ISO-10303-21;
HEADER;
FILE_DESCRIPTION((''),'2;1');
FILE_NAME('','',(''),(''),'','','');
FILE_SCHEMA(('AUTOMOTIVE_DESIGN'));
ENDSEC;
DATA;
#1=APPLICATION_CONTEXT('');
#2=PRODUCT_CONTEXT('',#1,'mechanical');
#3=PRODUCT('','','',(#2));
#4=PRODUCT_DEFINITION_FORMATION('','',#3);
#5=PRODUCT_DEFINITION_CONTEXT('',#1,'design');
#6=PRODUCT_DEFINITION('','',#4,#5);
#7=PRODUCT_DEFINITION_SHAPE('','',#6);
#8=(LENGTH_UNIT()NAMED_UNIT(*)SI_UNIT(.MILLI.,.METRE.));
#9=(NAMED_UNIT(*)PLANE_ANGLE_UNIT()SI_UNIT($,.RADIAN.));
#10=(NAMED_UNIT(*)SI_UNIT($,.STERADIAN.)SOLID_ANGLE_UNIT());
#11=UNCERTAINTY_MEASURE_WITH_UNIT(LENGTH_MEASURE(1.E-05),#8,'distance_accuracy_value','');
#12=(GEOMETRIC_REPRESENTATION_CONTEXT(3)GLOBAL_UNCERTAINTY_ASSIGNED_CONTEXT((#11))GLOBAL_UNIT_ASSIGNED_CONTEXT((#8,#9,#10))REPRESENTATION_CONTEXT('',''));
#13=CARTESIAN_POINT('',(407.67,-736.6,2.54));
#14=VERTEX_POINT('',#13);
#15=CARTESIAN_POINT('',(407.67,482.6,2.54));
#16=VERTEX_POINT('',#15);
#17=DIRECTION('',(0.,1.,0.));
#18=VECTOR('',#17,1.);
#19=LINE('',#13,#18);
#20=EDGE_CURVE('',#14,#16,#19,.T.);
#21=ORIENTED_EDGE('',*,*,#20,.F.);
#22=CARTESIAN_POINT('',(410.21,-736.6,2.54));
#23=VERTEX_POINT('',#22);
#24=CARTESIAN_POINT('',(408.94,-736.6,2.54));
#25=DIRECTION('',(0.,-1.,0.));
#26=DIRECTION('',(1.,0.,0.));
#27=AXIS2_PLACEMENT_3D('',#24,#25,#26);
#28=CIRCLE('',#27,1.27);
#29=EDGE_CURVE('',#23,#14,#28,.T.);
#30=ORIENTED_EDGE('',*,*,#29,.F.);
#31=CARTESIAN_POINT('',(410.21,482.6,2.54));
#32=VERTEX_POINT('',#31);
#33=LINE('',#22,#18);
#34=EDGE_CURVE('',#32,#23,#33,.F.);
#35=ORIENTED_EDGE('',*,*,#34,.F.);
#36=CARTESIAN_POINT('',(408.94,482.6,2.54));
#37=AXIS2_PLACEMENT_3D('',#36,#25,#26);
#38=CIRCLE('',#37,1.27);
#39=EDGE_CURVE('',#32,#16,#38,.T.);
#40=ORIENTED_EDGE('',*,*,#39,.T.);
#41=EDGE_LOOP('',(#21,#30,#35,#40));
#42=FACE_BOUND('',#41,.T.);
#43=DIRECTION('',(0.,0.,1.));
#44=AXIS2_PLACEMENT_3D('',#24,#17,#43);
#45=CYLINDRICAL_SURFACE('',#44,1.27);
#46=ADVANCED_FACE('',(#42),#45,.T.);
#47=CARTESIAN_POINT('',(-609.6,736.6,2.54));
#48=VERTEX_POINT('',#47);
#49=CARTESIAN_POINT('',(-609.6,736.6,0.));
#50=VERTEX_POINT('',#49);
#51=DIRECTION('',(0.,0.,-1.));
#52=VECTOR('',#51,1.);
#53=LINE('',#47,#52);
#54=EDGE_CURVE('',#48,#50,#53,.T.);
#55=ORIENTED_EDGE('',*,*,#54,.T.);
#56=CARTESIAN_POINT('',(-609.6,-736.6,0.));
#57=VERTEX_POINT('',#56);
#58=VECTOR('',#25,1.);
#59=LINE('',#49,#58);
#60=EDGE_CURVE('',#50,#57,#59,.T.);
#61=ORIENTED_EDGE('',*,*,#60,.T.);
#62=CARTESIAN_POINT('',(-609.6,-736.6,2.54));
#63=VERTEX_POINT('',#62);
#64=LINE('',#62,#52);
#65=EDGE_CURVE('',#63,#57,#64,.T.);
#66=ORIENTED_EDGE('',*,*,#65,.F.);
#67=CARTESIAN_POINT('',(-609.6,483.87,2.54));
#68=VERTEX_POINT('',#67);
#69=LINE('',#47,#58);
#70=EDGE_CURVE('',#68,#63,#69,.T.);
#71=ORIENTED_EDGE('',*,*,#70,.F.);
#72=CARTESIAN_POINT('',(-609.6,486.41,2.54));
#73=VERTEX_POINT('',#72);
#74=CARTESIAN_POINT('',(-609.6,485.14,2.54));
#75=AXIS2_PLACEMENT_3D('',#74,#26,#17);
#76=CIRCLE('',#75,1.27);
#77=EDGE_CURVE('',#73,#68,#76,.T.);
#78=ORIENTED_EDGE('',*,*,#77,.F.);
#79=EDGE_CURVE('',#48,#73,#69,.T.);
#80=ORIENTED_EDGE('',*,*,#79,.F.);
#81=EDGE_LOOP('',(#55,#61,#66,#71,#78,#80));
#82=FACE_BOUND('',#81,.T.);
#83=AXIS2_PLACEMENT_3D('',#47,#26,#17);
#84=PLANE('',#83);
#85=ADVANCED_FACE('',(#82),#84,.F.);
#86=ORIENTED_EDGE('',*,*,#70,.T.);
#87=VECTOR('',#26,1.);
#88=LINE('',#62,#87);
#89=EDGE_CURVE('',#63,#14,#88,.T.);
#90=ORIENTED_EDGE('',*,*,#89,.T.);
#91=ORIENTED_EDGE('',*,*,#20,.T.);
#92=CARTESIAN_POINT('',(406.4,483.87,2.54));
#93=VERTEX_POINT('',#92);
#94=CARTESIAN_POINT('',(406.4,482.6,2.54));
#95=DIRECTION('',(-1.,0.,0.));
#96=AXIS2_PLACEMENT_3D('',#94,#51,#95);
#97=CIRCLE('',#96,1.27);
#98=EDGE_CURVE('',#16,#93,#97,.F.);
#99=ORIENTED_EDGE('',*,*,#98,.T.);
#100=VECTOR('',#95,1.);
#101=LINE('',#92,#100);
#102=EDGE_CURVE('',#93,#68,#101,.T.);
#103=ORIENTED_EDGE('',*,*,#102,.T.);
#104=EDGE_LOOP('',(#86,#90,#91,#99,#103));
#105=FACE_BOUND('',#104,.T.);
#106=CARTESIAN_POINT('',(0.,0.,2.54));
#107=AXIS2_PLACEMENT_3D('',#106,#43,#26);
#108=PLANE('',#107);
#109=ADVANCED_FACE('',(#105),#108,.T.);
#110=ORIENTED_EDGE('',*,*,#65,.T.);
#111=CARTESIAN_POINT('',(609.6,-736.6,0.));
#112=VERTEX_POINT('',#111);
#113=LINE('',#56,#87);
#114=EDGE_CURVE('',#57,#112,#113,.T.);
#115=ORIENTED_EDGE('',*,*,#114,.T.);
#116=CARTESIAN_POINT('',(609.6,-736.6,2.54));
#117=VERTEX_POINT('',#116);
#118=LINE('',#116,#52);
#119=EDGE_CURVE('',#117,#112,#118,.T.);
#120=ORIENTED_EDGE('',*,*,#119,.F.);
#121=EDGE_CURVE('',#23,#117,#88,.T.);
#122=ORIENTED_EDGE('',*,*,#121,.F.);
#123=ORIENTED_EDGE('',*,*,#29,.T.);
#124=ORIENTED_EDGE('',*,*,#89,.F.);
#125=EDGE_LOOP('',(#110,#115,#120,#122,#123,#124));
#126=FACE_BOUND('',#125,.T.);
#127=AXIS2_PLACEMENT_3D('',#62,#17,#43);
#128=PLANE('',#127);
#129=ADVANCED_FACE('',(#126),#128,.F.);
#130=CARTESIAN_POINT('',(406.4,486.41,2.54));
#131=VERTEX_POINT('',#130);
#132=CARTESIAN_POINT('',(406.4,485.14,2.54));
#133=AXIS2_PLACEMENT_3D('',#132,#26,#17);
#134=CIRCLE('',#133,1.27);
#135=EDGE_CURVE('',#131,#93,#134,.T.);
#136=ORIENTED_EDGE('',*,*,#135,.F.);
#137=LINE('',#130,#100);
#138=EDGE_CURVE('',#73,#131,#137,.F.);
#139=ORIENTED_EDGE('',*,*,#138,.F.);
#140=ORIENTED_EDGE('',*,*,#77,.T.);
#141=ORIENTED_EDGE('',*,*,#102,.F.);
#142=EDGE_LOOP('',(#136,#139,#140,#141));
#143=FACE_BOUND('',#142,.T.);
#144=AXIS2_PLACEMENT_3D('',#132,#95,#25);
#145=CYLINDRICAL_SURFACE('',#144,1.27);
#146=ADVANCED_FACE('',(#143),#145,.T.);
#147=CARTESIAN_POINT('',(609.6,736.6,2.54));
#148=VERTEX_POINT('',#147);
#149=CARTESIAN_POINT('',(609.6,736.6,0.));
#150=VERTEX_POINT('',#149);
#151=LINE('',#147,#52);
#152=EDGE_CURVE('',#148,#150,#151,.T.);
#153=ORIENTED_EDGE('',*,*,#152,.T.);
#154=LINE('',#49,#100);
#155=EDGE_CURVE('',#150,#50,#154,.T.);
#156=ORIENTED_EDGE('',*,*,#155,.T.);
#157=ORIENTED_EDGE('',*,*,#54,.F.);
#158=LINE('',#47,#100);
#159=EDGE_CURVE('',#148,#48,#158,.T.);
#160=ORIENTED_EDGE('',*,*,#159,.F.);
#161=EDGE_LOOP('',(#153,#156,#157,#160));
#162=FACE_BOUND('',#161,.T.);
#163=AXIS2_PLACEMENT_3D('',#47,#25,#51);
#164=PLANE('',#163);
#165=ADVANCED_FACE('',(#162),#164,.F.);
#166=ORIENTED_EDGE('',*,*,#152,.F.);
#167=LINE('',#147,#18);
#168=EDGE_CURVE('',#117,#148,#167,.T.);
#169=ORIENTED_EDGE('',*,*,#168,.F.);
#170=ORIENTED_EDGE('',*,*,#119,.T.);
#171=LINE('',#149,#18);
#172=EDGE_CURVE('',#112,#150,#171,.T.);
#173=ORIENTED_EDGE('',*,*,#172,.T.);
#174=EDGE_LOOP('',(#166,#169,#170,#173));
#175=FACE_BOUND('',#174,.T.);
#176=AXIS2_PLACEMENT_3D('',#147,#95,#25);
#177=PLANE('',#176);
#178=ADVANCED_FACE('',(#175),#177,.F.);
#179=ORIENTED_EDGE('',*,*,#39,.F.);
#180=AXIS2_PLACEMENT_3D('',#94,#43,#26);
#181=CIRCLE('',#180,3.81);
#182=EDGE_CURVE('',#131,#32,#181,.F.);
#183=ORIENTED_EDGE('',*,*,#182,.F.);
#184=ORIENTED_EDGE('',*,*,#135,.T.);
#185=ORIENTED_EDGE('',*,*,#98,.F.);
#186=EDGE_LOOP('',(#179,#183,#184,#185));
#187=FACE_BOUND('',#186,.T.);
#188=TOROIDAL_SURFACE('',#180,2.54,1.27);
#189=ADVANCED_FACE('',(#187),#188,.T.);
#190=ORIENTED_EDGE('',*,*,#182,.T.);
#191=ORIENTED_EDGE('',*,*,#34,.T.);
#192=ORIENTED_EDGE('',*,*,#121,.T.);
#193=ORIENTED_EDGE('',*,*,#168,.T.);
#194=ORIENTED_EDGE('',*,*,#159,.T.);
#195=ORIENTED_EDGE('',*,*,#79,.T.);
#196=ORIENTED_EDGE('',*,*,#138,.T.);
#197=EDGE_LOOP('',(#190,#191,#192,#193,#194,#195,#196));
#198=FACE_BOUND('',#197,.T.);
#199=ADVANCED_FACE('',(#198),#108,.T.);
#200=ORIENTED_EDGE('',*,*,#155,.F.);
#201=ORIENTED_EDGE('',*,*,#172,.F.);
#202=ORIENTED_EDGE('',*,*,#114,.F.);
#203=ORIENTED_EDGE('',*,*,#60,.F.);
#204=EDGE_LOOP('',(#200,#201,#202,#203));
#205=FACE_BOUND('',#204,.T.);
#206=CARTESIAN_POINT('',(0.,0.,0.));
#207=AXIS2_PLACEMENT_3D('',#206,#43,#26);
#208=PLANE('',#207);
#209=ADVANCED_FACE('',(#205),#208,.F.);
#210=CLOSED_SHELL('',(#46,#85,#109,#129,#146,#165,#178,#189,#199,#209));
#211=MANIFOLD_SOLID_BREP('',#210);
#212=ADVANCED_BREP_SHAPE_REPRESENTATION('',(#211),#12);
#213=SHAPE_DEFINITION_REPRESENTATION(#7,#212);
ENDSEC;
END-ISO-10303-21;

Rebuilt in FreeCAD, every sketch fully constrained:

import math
import FreeCAD as App
import Part
import Sketcher
from FreeCAD import Vector
Q = App.Units.Quantity


def add_polygon(sketch, points):
    """Adds a closed chain of lines whose ends are joined by coincident constraints."""
    first, n = sketch.GeometryCount, len(points)
    for a, b in zip(points, points[1:] + points[:1]):
        sketch.addGeometry(Part.LineSegment(App.Vector(*a, 0), App.Vector(*b, 0)), False)
    for i in range(n):
        sketch.addConstraint(Sketcher.Constraint("Coincident", first + i, 2, first + (i + 1) % n, 1))

doc = App.newDocument("Part")
body = doc.addObject("PartDesign::Body", "Body")

# Sketch on XY plane
sketch1 = doc.addObject("Sketcher::SketchObject", "Sketch")
body.addObject(sketch1)
sketch1.AttachmentSupport = (doc.XY_Plane, [""])
sketch1.MapMode = "FlatFace"
add_polygon(sketch1, [(-609.6, 736.6), (-609.6, -736.6), (609.6, -736.6), (609.6, 736.6)])  # lines 0-3
sketch1.addConstraint([
    Sketcher.Constraint("Vertical", 0),
    Sketcher.Constraint("Horizontal", 1),
    Sketcher.Constraint("Vertical", 2),
    Sketcher.Constraint("Horizontal", 3),
    Sketcher.Constraint("Symmetric", 0, 2, 2, 2, -1, 1),
    Sketcher.Constraint("DistanceX", 1, 1, 1, 2, Q("48 in")),
    Sketcher.Constraint("DistanceY", 0, 2, 0, 1, Q("58 in")),
])
pad1 = doc.addObject("PartDesign::Pad", "Pad")
body.addObject(pad1)
pad1.Profile = sketch1
pad1.Length = Q("0.1 in")

# Sketch on XZ plane
sketch2 = doc.addObject("Sketcher::SketchObject", "Sketch001")
body.addObject(sketch2)
sketch2.AttachmentSupport = (doc.XZ_Plane, [""])
sketch2.MapMode = "FlatFace"
sketch2.AttachmentOffset = App.Placement(Vector(0, 0, 29 * 25.4), App.Rotation())
sketch2.addGeometry(Part.Circle(Vector(408.94, 2.54, 0), Vector(0, 0, 1), 1.27), False)
sketch2.addConstraint([
    Sketcher.Constraint("Diameter", 0, Q("0.1 in")),
    Sketcher.Constraint("DistanceX", -1, 1, 0, 3, Q("16.1 in")),
    Sketcher.Constraint("DistanceY", -1, 1, 0, 3, Q("0.1 in")),
])

# Sketch on XY plane
sketch3 = doc.addObject("Sketcher::SketchObject", "Sketch002")
body.addObject(sketch3)
sketch3.AttachmentSupport = (doc.XY_Plane, [""])
sketch3.MapMode = "FlatFace"
sketch3.AttachmentOffset = App.Placement(Vector(0, 0, 0.1 * 25.4), App.Rotation())
sketch3.addGeometry([
    Part.LineSegment(Vector(408.94, -736.6, 0), Vector(408.94, 482.6, 0)),
    Part.ArcOfCircle(Part.Circle(Vector(406.4, 482.6, 0), Vector(0, 0, 1), 2.54), math.radians(0), math.radians(90)),
    Part.LineSegment(Vector(406.4, 485.14, 0), Vector(-609.6, 485.14, 0)),
], False)
sketch3.addConstraint([
    Sketcher.Constraint("Tangent", 0, 2, 1, 1),
    Sketcher.Constraint("Tangent", 1, 2, 2, 1),
    Sketcher.Constraint("Vertical", 0),
    Sketcher.Constraint("Horizontal", 2),
    Sketcher.Constraint("Radius", 1, Q("0.1 in")),
    Sketcher.Constraint("DistanceX", 2, 2, 2, 1, Q("40 in")),
    Sketcher.Constraint("DistanceY", 0, 1, 0, 2, Q("48 in")),
    Sketcher.Constraint("DistanceX", -1, 1, 1, 3, Q("16 in")),
    Sketcher.Constraint("DistanceY", -1, 1, 1, 3, Q("19 in")),
])
doc.recompute()

additivepipe = doc.addObject("PartDesign::AdditivePipe", "AdditivePipe")
body.addObject(additivepipe)
additivepipe.Profile = sketch2
additivepipe.Spine = (sketch3, ["Edge1", "Edge2", "Edge3"])

doc.recompute()
